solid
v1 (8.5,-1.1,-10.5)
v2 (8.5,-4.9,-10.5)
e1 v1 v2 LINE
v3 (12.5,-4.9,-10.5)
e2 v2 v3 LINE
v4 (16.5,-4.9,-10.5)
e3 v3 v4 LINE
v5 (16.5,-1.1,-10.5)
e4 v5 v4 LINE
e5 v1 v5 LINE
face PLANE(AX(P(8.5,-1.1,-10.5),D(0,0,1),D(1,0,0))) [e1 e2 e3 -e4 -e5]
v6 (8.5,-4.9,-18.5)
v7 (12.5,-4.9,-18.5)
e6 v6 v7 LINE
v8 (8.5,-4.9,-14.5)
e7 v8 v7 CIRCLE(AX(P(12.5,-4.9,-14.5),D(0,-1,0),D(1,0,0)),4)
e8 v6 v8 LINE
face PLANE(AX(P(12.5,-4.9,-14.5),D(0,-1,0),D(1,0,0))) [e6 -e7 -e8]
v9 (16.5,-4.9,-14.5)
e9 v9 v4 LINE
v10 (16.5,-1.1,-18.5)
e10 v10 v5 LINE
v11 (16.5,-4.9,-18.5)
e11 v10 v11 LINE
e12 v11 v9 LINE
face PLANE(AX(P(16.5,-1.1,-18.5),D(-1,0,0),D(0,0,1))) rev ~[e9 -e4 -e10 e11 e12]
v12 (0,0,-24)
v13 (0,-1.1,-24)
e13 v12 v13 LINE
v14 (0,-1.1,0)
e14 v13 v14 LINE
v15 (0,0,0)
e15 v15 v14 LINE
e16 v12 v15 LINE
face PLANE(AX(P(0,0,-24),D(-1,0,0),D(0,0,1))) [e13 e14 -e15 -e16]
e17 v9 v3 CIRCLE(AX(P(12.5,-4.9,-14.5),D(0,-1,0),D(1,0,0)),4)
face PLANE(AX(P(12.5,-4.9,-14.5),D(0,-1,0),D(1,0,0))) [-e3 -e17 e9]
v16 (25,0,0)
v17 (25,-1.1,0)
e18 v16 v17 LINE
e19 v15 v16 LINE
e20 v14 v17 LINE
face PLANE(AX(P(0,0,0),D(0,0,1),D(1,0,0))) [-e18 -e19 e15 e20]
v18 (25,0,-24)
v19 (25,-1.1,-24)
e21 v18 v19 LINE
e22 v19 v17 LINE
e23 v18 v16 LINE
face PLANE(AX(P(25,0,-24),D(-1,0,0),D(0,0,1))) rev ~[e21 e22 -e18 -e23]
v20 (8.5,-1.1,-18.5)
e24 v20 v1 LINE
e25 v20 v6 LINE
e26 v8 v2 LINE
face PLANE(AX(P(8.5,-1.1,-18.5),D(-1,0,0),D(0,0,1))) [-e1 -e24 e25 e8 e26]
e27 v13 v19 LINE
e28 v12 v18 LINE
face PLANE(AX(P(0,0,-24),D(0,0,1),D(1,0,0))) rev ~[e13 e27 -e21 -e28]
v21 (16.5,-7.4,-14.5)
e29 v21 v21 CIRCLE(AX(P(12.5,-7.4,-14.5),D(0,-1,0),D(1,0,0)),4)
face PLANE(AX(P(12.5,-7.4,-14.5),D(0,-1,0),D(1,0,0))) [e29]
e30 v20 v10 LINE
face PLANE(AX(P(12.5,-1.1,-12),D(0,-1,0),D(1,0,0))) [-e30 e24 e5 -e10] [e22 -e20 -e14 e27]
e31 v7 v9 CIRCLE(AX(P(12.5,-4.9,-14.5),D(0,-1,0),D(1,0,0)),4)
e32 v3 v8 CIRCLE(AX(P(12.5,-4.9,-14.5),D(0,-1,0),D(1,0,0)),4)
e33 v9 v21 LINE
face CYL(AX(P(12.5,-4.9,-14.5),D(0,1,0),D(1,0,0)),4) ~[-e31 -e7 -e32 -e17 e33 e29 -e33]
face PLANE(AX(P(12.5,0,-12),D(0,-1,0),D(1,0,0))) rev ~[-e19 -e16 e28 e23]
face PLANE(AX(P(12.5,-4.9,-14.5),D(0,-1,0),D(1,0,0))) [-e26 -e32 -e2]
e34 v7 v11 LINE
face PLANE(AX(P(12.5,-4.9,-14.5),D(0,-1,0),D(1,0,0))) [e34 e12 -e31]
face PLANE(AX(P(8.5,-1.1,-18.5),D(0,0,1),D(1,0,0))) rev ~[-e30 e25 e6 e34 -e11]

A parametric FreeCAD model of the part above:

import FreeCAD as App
import Part
import Sketcher

V = App.Vector
Q = App.Units.Quantity

doc = App.newDocument("Part")
params = doc.addObject("Spreadsheet::Sheet", "Params")
for row, (alias, value) in enumerate([
    ("sketch1_width", "25 mm"),
    ("sketch1_height", "24 mm"),
    ("pad1_length", "1.1 mm"),
    ("sketch2_width", "8 mm"),
    ("pad2_length", "3.8 mm"),
    ("sketch3_diameter", "8 mm"),
    ("pad3_length", "2.5 mm"),
], start=1):
    params.set(f"A{row}", alias)
    params.set(f"B{row}", "=" + value)
    params.setAlias(f"B{row}", alias)

body = doc.addObject("PartDesign::Body", "Body")

# Sketch on XZ plane
sketch1 = body.newObject("Sketcher::SketchObject", "Sketch")
sketch1.AttachmentSupport = (doc.getObject("XZ_Plane"), [""])
sketch1.MapMode = "FlatFace"
sketch1.addGeometry(Part.LineSegment(V(0, 0, 0), V(0, -24, 0)), False)
sketch1.addGeometry(Part.LineSegment(V(0, -24, 0), V(25, -24, 0)), False)
sketch1.addGeometry(Part.LineSegment(V(25, -24, 0), V(25, 0, 0)), False)
sketch1.addGeometry(Part.LineSegment(V(25, 0, 0), V(0, 0, 0)), False)
sketch1.addConstraint(Sketcher.Constraint("Coincident", 0, 2, 1, 1))
sketch1.addConstraint(Sketcher.Constraint("Coincident", 1, 2, 2, 1))
sketch1.addConstraint(Sketcher.Constraint("Coincident", 2, 2, 3, 1))
sketch1.addConstraint(Sketcher.Constraint("Coincident", 3, 2, 0, 1))
sketch1.addConstraint(Sketcher.Constraint("Vertical", 0))
sketch1.addConstraint(Sketcher.Constraint("Horizontal", 1))
sketch1.addConstraint(Sketcher.Constraint("Vertical", 2))
sketch1.addConstraint(Sketcher.Constraint("Horizontal", 3))
sketch1.addConstraint(Sketcher.Constraint("Coincident", 3, 2, -1, 1))
sketch1.addConstraint(Sketcher.Constraint("DistanceX", 1, 1, 1, 2, Q("25 mm")))
sketch1.addConstraint(Sketcher.Constraint("DistanceY", 0, 2, 0, 1, Q("24 mm")))
sketch1.setExpression("Constraints[9]", "Params.sketch1_width")
sketch1.setExpression("Constraints[10]", "Params.sketch1_height")
pad1 = body.newObject("PartDesign::Pad", "Pad")
pad1.Profile = sketch1
pad1.setExpression("Length", "Params.pad1_length")

# Sketch on XZ plane
sketch2 = body.newObject("Sketcher::SketchObject", "Sketch001")
sketch2.AttachmentSupport = (doc.getObject("XZ_Plane"), [""])
sketch2.MapMode = "FlatFace"
sketch2.AttachmentOffset = App.Placement(V(0, 0, 1.1), App.Rotation())
sketch2.addGeometry(Part.LineSegment(V(8, -10, 0), V(8, -18, 0)), False)
sketch2.addGeometry(Part.LineSegment(V(8, -18, 0), V(16, -18, 0)), False)
sketch2.addGeometry(Part.LineSegment(V(16, -18, 0), V(16, -10, 0)), False)
sketch2.addGeometry(Part.LineSegment(V(16, -10, 0), V(8, -10, 0)), False)
sketch2.addConstraint(Sketcher.Constraint("Coincident", 0, 2, 1, 1))
sketch2.addConstraint(Sketcher.Constraint("Coincident", 1, 2, 2, 1))
sketch2.addConstraint(Sketcher.Constraint("Coincident", 2, 2, 3, 1))
sketch2.addConstraint(Sketcher.Constraint("Coincident", 3, 2, 0, 1))
sketch2.addConstraint(Sketcher.Constraint("Vertical", 0))
sketch2.addConstraint(Sketcher.Constraint("Horizontal", 1))
sketch2.addConstraint(Sketcher.Constraint("Vertical", 2))
sketch2.addConstraint(Sketcher.Constraint("Horizontal", 3))
sketch2.addConstraint(Sketcher.Constraint("Equal", 3, 0))
sketch2.addConstraint(Sketcher.Constraint("DistanceX", 1, 1, 1, 2, Q("8 mm")))
sketch2.addConstraint(Sketcher.Constraint("DistanceX", -1, 1, 0, 2, Q("8.5 mm")))
sketch2.addConstraint(Sketcher.Constraint("DistanceY", 0, 2, -1, 1, Q("18.5 mm")))
sketch2.setExpression("Constraints[9]", "Params.sketch2_width")
pad2 = body.newObject("PartDesign::Pad", "Pad001")
pad2.Profile = sketch2
pad2.setExpression("Length", "Params.pad2_length")

# Sketch on XZ plane
sketch3 = body.newObject("Sketcher::SketchObject", "Sketch002")
sketch3.AttachmentSupport = (doc.getObject("XZ_Plane"), [""])
sketch3.MapMode = "FlatFace"
sketch3.AttachmentOffset = App.Placement(V(0, 0, 4.9), App.Rotation())
sketch3.addGeometry(Part.Circle(V(12.5, -14.5, 0), V(0, 0, 1), 4), False)
sketch3.addConstraint(Sketcher.Constraint("Diameter", 0, Q("8 mm")))
sketch3.addConstraint(Sketcher.Constraint("DistanceX", -1, 1, 0, 3, Q("12.5 mm")))
sketch3.addConstraint(Sketcher.Constraint("DistanceY", 0, 3, -1, 1, Q("14.5 mm")))
sketch3.setExpression("Constraints[0]", "Params.sketch3_diameter")
pad3 = body.newObject("PartDesign::Pad", "Pad002")
pad3.Profile = sketch3
pad3.setExpression("Length", "Params.pad3_length")

doc.recompute()
